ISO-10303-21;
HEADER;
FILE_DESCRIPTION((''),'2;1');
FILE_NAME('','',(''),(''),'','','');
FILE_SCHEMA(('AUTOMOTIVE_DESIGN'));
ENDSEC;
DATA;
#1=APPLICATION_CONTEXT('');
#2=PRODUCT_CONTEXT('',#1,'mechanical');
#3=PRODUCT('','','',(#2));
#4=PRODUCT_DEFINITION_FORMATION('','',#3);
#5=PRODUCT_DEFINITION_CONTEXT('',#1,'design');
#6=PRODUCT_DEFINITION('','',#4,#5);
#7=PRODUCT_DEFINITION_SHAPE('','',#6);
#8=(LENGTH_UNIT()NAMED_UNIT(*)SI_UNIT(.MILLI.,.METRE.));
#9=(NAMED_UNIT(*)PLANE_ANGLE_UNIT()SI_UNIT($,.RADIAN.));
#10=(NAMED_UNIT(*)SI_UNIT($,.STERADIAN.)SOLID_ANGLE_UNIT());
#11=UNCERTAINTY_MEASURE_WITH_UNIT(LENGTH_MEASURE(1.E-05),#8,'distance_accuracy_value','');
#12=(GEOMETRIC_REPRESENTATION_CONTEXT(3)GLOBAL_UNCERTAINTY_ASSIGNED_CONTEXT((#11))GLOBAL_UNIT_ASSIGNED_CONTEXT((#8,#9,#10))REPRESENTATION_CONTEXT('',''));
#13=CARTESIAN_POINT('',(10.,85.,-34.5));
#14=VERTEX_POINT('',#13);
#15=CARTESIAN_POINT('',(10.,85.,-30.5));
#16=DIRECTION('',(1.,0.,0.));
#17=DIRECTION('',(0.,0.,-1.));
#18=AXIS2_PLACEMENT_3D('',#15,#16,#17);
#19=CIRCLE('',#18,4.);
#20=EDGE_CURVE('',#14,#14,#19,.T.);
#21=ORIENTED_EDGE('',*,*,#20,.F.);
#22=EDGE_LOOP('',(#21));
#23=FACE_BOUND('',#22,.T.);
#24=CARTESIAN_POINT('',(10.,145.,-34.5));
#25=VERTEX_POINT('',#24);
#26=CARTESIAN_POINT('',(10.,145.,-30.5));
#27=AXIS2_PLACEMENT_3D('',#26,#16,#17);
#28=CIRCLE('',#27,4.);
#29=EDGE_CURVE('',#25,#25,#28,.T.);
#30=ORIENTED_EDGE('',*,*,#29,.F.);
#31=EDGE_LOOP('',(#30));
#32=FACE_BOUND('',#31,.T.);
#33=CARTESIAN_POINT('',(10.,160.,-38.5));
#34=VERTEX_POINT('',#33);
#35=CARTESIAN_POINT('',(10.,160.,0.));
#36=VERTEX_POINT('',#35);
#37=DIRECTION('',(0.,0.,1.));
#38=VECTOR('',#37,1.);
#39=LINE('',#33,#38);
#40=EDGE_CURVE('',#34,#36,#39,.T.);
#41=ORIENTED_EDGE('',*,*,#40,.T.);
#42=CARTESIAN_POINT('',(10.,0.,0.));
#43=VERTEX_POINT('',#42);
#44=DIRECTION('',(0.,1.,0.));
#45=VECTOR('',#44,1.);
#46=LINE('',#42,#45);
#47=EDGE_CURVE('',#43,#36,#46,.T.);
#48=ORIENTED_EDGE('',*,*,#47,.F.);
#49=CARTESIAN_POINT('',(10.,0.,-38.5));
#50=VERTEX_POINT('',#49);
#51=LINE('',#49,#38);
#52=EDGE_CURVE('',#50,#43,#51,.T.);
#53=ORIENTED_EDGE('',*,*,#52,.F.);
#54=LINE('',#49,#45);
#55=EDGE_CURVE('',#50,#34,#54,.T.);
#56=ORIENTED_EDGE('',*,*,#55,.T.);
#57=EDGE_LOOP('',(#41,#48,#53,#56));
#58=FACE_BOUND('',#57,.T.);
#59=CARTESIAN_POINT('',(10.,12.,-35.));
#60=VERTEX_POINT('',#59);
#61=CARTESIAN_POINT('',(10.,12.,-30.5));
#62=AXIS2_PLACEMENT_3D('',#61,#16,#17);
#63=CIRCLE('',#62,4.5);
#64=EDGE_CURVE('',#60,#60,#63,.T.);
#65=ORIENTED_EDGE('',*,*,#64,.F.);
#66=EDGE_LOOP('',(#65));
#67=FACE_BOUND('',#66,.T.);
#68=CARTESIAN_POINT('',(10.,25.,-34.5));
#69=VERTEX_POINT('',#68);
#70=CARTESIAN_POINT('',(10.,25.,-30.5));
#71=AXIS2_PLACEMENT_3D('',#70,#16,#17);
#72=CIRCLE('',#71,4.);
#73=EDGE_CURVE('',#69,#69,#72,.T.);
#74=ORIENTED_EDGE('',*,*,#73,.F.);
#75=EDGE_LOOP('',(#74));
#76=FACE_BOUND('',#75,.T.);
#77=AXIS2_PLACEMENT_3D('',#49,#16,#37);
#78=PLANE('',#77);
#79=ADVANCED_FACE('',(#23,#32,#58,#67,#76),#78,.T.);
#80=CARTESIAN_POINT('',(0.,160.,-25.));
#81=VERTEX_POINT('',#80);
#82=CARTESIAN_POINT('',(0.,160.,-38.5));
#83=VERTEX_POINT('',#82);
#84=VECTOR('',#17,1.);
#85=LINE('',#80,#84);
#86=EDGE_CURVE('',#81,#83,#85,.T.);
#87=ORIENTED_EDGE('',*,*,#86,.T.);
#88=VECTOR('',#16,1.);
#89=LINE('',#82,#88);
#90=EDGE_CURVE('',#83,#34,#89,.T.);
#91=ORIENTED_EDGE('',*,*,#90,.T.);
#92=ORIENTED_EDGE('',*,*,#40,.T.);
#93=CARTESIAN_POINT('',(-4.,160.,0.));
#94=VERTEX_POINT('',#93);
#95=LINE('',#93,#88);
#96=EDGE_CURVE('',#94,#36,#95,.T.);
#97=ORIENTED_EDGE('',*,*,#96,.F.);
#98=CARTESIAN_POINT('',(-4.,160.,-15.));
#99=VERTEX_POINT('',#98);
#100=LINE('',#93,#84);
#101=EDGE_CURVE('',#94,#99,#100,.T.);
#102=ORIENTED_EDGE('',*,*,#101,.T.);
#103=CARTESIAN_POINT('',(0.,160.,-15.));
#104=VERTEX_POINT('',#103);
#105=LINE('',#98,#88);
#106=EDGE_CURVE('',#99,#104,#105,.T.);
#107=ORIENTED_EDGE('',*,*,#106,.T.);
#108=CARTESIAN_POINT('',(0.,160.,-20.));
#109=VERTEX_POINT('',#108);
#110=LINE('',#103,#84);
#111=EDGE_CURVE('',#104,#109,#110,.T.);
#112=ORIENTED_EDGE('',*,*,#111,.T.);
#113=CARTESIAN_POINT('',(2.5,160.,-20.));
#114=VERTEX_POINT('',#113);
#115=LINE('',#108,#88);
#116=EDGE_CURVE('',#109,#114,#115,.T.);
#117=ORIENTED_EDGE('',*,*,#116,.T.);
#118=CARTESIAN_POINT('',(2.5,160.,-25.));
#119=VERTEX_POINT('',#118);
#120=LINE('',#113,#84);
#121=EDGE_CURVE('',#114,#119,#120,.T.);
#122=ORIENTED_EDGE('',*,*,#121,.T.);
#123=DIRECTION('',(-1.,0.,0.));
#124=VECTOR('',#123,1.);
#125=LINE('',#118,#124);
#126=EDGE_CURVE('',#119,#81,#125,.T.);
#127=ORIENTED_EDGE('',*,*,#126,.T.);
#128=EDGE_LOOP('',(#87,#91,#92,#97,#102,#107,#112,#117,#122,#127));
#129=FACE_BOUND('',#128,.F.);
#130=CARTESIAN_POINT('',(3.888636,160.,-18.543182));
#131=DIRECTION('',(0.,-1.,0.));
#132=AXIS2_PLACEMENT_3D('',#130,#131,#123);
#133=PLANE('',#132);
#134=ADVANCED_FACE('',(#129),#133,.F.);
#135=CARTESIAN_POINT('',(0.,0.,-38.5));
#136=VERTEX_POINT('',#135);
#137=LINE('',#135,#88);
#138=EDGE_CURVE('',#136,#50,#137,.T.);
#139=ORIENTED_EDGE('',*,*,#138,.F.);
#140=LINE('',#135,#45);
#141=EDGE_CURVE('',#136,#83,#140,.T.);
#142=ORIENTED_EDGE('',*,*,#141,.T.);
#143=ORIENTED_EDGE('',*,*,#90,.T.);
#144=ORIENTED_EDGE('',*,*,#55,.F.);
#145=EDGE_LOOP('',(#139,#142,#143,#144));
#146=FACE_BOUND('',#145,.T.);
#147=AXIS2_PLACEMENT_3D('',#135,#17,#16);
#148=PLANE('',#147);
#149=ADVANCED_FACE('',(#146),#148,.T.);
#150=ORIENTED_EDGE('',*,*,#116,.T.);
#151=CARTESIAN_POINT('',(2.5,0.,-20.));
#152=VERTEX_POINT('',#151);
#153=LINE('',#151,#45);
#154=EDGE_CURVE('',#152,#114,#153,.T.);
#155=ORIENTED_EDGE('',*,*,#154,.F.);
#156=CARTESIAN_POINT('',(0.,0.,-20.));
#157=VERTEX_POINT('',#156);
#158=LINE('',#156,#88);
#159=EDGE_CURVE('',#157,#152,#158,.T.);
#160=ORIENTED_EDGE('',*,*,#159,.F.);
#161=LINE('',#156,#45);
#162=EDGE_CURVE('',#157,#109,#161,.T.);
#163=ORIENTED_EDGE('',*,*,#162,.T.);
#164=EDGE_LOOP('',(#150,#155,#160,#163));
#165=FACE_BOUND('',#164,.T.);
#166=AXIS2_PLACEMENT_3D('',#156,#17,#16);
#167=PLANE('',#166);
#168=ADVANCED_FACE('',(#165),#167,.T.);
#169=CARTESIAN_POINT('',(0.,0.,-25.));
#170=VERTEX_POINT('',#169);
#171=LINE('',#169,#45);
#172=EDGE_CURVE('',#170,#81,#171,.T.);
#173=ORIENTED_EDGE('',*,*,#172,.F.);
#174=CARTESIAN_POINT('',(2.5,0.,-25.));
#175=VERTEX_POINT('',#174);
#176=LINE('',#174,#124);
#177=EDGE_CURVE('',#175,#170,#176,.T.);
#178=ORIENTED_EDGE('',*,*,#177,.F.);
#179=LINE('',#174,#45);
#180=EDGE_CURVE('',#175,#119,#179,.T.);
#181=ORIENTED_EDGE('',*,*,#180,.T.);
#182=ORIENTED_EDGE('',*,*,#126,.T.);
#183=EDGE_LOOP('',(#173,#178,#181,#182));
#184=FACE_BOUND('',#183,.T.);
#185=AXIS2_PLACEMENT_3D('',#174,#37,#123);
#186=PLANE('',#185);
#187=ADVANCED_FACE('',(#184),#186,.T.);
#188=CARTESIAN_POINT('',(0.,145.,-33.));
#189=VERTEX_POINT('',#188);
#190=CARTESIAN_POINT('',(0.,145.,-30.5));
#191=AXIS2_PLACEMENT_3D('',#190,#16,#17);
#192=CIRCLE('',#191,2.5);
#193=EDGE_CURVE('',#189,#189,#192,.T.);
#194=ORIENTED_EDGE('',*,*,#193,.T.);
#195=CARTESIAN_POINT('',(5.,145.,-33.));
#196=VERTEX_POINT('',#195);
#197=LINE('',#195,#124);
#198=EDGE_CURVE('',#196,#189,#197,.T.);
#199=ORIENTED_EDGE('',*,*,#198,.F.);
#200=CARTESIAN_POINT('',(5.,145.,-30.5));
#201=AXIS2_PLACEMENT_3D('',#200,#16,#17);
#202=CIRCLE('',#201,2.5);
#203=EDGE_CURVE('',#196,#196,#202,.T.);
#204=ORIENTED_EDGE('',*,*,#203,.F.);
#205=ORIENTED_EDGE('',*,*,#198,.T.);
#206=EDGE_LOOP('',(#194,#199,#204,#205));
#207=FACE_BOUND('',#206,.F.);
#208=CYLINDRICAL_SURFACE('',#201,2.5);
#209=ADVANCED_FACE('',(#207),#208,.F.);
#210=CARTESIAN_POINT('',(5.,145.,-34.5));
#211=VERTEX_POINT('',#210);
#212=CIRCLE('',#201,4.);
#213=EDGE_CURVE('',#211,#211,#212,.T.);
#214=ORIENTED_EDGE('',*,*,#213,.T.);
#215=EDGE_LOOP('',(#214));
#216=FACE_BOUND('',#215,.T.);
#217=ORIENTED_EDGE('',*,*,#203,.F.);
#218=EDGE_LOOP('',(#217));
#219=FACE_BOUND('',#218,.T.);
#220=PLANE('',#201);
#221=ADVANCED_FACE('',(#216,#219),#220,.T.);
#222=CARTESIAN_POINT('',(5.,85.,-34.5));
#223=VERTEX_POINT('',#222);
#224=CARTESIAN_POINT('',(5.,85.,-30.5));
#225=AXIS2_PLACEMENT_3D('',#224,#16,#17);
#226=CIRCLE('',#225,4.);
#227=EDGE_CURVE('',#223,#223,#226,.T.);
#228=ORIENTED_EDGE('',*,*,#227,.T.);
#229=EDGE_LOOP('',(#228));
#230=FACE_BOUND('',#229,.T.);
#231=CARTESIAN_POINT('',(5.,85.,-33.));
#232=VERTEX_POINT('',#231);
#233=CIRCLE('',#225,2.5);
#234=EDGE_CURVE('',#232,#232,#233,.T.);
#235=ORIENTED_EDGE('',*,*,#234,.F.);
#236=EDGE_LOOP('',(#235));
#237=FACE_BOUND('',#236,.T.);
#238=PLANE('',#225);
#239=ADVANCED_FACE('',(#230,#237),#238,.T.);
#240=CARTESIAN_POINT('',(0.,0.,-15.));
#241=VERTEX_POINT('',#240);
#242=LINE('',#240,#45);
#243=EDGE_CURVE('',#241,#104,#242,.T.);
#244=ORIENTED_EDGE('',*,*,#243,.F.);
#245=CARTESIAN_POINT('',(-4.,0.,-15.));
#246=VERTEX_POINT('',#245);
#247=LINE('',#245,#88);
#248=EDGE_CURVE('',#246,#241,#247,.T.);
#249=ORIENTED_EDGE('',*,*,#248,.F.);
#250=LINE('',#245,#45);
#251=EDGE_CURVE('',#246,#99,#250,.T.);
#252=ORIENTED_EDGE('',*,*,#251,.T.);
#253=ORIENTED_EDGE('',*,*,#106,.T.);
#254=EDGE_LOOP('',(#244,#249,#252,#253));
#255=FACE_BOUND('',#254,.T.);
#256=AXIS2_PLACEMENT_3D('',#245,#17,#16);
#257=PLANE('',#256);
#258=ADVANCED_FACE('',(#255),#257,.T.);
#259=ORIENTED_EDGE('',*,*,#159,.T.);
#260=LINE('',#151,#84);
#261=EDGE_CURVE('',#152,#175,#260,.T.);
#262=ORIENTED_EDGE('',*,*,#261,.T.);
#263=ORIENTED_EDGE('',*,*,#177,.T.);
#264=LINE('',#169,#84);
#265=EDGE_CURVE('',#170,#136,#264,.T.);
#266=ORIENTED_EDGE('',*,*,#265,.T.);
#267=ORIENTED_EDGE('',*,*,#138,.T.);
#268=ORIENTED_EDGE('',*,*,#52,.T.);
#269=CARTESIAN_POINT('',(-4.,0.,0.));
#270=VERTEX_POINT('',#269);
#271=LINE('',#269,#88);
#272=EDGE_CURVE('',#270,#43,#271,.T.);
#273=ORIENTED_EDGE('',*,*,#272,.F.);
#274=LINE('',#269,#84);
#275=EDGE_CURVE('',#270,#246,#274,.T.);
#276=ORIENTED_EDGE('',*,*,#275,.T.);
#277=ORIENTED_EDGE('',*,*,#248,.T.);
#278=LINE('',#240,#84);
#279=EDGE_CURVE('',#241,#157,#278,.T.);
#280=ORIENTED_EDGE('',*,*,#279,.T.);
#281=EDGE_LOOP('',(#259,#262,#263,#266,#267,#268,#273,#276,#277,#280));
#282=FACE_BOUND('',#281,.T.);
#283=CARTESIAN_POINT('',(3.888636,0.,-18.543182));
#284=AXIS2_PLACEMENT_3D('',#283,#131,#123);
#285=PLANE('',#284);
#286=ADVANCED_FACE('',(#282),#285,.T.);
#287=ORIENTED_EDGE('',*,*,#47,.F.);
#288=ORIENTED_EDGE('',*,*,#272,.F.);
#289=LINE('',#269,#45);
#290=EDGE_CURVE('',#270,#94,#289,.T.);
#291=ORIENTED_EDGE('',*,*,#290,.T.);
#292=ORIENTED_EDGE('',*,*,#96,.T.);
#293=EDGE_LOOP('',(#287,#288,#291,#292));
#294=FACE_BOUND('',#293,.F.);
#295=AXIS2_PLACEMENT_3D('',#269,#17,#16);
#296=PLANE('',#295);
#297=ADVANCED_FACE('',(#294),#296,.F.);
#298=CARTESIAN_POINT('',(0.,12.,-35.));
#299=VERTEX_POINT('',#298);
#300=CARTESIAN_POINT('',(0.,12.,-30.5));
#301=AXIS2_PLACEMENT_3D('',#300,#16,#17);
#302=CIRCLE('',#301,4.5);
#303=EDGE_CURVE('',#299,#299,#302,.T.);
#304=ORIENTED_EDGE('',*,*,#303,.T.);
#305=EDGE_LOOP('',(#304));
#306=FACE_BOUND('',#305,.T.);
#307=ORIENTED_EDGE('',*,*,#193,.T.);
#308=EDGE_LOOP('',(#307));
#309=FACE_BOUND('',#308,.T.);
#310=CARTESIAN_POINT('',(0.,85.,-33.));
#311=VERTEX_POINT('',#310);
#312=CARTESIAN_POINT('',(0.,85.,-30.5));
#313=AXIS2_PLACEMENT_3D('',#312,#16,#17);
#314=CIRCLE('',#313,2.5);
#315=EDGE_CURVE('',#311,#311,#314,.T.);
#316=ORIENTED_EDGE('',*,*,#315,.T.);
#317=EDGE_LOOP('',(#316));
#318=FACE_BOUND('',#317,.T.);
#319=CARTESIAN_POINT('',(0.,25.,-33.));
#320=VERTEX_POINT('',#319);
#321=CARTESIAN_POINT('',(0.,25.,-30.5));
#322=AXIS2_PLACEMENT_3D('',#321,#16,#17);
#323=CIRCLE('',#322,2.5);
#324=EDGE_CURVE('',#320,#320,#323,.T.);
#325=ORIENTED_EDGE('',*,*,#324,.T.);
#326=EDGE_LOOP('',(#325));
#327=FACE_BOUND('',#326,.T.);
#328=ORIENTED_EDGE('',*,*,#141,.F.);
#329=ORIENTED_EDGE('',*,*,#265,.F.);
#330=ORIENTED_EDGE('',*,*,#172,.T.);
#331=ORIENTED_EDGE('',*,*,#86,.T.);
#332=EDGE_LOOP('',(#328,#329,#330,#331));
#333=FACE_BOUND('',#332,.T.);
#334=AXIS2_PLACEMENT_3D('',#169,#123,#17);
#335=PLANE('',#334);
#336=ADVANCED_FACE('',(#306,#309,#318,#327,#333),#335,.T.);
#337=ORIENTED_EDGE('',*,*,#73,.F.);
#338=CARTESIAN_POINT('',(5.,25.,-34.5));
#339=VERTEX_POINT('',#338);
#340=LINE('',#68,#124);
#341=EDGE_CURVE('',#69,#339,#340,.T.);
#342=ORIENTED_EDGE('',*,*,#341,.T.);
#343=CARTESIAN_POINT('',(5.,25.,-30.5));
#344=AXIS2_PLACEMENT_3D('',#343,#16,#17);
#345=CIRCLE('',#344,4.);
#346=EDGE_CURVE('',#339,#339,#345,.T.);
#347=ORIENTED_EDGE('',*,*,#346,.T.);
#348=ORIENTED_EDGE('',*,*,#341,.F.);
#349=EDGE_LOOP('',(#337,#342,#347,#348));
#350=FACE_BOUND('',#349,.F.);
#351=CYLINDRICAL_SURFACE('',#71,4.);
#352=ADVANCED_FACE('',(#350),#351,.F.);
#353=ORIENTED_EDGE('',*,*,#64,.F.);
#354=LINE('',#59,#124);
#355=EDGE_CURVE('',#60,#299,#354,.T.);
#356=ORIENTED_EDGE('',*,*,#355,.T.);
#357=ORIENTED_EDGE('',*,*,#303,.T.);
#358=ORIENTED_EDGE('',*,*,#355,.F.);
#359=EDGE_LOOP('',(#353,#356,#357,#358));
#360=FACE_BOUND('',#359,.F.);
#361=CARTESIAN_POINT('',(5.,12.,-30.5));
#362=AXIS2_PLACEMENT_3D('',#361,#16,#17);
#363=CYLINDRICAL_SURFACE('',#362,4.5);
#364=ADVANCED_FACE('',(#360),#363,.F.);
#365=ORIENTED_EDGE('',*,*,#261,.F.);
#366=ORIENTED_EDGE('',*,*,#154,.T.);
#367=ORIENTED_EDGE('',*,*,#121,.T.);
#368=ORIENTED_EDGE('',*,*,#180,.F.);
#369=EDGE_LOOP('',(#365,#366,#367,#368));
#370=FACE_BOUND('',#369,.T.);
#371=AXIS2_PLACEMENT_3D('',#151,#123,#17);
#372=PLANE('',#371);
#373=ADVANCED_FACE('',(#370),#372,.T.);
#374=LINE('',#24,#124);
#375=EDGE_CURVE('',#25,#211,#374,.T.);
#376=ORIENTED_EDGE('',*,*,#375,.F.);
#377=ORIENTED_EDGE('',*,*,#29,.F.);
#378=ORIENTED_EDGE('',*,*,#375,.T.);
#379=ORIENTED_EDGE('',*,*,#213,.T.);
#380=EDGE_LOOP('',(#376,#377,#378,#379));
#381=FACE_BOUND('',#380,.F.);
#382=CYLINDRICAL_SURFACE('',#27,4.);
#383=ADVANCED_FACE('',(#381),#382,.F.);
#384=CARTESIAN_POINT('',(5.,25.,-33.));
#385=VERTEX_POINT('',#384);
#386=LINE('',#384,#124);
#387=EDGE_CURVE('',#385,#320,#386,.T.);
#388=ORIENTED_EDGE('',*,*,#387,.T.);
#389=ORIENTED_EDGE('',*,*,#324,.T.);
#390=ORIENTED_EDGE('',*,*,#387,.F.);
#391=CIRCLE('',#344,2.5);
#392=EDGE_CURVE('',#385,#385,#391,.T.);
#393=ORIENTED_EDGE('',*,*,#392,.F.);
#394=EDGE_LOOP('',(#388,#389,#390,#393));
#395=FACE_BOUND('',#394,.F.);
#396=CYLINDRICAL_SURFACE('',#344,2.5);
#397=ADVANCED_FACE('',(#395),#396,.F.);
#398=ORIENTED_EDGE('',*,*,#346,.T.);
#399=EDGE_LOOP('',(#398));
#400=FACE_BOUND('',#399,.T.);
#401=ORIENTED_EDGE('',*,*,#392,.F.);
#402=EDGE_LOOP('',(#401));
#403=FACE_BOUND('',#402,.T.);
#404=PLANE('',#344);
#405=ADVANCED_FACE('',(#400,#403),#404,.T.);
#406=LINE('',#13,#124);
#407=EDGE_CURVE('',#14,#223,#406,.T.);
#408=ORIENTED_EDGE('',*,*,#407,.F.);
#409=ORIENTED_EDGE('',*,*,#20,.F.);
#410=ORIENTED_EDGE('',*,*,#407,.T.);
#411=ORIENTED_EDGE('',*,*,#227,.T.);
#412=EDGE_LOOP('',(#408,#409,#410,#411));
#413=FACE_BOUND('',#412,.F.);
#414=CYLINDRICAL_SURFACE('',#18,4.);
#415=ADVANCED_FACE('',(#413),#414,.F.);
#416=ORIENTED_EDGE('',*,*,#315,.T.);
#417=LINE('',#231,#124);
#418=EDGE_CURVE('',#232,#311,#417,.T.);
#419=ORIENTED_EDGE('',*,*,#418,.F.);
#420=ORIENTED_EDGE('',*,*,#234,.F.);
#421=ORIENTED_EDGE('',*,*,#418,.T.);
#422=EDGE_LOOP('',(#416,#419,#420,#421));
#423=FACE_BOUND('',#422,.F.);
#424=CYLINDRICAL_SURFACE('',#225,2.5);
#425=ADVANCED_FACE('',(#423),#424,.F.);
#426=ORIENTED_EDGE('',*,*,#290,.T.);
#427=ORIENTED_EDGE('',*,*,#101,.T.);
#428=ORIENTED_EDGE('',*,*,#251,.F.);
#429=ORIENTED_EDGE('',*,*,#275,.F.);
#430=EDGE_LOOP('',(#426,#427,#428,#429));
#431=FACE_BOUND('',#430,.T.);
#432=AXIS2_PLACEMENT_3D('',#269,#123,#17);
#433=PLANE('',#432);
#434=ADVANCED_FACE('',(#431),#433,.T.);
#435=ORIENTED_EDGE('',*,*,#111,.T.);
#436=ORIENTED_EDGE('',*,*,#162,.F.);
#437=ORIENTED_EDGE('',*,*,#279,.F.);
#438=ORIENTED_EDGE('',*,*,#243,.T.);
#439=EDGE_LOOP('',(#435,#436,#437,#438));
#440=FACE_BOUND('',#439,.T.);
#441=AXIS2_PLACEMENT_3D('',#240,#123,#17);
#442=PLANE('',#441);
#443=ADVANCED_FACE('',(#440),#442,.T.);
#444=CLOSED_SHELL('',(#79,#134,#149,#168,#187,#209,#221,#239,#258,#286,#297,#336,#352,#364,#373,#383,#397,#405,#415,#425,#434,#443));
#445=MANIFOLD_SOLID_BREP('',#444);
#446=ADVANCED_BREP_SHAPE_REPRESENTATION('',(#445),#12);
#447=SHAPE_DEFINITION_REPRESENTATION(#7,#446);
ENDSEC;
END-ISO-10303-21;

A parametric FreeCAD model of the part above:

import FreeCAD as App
import Part
import Sketcher

V = App.Vector
Q = App.Units.Quantity


def add_polygon(sketch, points):
    """Adds a closed chain of lines whose ends are joined by coincident constraints."""
    first, n = sketch.GeometryCount, len(points)
    for a, b in zip(points, points[1:] + points[:1]):
        sketch.addGeometry(Part.LineSegment(App.Vector(*a, 0), App.Vector(*b, 0)), False)
    for i in range(n):
        sketch.addConstraint(Sketcher.Constraint("Coincident", first + i, 2, first + (i + 1) % n, 1))

doc = App.newDocument("Part")
body = doc.addObject("PartDesign::Body", "Body")

# Sketch on XZ plane
sketch1 = doc.addObject("Sketcher::SketchObject", "Sketch")
body.addObject(sketch1)
sketch1.AttachmentSupport = (doc.XZ_Plane, [""])
sketch1.MapMode = "FlatFace"
add_polygon(sketch1, [(2.5, -20), (0, -20), (0, -15), (-4, -15), (-4, 0), (10, 0), (10, -38.5), (0, -38.5), (0, -25), (2.5, -25)])  # lines 0-9
sketch1.addConstraint(Sketcher.Constraint("Horizontal", 0))
sketch1.addConstraint(Sketcher.Constraint("Vertical", 1))
sketch1.addConstraint(Sketcher.Constraint("Horizontal", 2))
sketch1.addConstraint(Sketcher.Constraint("Vertical", 3))
sketch1.addConstraint(Sketcher.Constraint("Horizontal", 4))
sketch1.addConstraint(Sketcher.Constraint("Vertical", 5))
sketch1.addConstraint(Sketcher.Constraint("Horizontal", 6))
sketch1.addConstraint(Sketcher.Constraint("Vertical", 7))
sketch1.addConstraint(Sketcher.Constraint("Horizontal", 8))
sketch1.addConstraint(Sketcher.Constraint("Vertical", 9))
sketch1.addConstraint(Sketcher.Constraint("PointOnObject", 0, 2, -2))
sketch1.addConstraint(Sketcher.Constraint("PointOnObject", 3, 2, -1))
sketch1.addConstraint(Sketcher.Constraint("PointOnObject", 6, 2, -2))
sketch1.addConstraint(Sketcher.Constraint("Equal", 1, 9))
sketch1.addConstraint(Sketcher.Constraint("DistanceX", 2, 2, 2, 1, Q("4 mm")))
sketch1.addConstraint(Sketcher.Constraint("DistanceX", 4, 1, 4, 2, Q("14 mm")))
sketch1.addConstraint(Sketcher.Constraint("DistanceY", 1, 1, 1, 2, Q("5 mm")))
sketch1.addConstraint(Sketcher.Constraint("DistanceY", 3, 1, 3, 2, Q("15 mm")))
sketch1.addConstraint(Sketcher.Constraint("DistanceX", 0, 2, 0, 1, Q("2.5 mm")))
sketch1.addConstraint(Sketcher.Constraint("DistanceY", 5, 2, 5, 1, Q("38.5 mm")))
pad1 = doc.addObject("PartDesign::Pad", "Pad")
body.addObject(pad1)
pad1.Profile = sketch1
pad1.Length = 160
pad1.Reversed = True

# Sketch on YZ plane
sketch2 = doc.addObject("Sketcher::SketchObject", "Sketch001")
body.addObject(sketch2)
sketch2.AttachmentSupport = (doc.YZ_Plane, [""])
sketch2.MapMode = "FlatFace"
sketch2.AttachmentOffset = App.Placement(V(0, 0, 10), App.Rotation())
sketch2.addGeometry(Part.Circle(V(145, -30.5, 0), V(0, 0, 1), 4), False)
sketch2.addGeometry(Part.Circle(V(85, -30.5, 0), V(0, 0, 1), 4), False)
sketch2.addGeometry(Part.Circle(V(25, -30.5, 0), V(0, 0, 1), 4), False)
sketch2.addGeometry(Part.Circle(V(12, -30.5, 0), V(0, 0, 1), 4.5), False)
sketch2.addConstraint(Sketcher.Constraint("Equal", 0, 1))
sketch2.addConstraint(Sketcher.Constraint("Equal", 1, 2))
sketch2.addConstraint(Sketcher.Constraint("Horizontal", 0, 3, 1, 3))
sketch2.addConstraint(Sketcher.Constraint("Horizontal", 1, 3, 2, 3))
sketch2.addConstraint(Sketcher.Constraint("Horizontal", 2, 3, 3, 3))
sketch2.addConstraint(Sketcher.Constraint("Diameter", 0, Q("8 mm")))
sketch2.addConstraint(Sketcher.Constraint("Diameter", 3, Q("9 mm")))
sketch2.addConstraint(Sketcher.Constraint("DistanceX", -1, 1, 0, 3, Q("145 mm")))
sketch2.addConstraint(Sketcher.Constraint("DistanceX", -1, 1, 1, 3, Q("85 mm")))
sketch2.addConstraint(Sketcher.Constraint("DistanceX", -1, 1, 2, 3, Q("25 mm")))
sketch2.addConstraint(Sketcher.Constraint("DistanceX", -1, 1, 3, 3, Q("12 mm")))
sketch2.addConstraint(Sketcher.Constraint("DistanceY", 0, 3, -1, 1, Q("30.5 mm")))
pocket1 = doc.addObject("PartDesign::Pocket", "Pocket")
body.addObject(pocket1)
pocket1.Profile = sketch2
pocket1.Length = 5

# Sketch on YZ plane
sketch3 = doc.addObject("Sketcher::SketchObject", "Sketch002")
body.addObject(sketch3)
sketch3.AttachmentSupport = (doc.YZ_Plane, [""])
sketch3.MapMode = "FlatFace"
sketch3.AttachmentOffset = App.Placement(V(0, 0, 5), App.Rotation())
sketch3.addGeometry(Part.Circle(V(145, -30.5, 0), V(0, 0, 1), 2.5), False)
sketch3.addGeometry(Part.Circle(V(85, -30.5, 0), V(0, 0, 1), 2.5), False)
sketch3.addGeometry(Part.Circle(V(25, -30.5, 0), V(0, 0, 1), 2.5), False)
sketch3.addGeometry(Part.Circle(V(12, -30.5, 0), V(0, 0, 1), 4.5), False)
sketch3.addConstraint(Sketcher.Constraint("Equal", 0, 1))
sketch3.addConstraint(Sketcher.Constraint("Equal", 1, 2))
sketch3.addConstraint(Sketcher.Constraint("Horizontal", 0, 3, 1, 3))
sketch3.addConstraint(Sketcher.Constraint("Horizontal", 1, 3, 2, 3))
sketch3.addConstraint(Sketcher.Constraint("Horizontal", 2, 3, 3, 3))
sketch3.addConstraint(Sketcher.Constraint("Diameter", 0, Q("5 mm")))
sketch3.addConstraint(Sketcher.Constraint("Diameter", 3, Q("9 mm")))
sketch3.addConstraint(Sketcher.Constraint("DistanceX", -1, 1, 0, 3, Q("145 mm")))
sketch3.addConstraint(Sketcher.Constraint("DistanceX", -1, 1, 1, 3, Q("85 mm")))
sketch3.addConstraint(Sketcher.Constraint("DistanceX", -1, 1, 2, 3, Q("25 mm")))
sketch3.addConstraint(Sketcher.Constraint("DistanceX", -1, 1, 3, 3, Q("12 mm")))
sketch3.addConstraint(Sketcher.Constraint("DistanceY", 0, 3, -1, 1, Q("30.5 mm")))
pocket2 = doc.addObject("PartDesign::Pocket", "Pocket001")
body.addObject(pocket2)
pocket2.Profile = sketch3
pocket2.Type = "ThroughAll"

doc.recompute()
